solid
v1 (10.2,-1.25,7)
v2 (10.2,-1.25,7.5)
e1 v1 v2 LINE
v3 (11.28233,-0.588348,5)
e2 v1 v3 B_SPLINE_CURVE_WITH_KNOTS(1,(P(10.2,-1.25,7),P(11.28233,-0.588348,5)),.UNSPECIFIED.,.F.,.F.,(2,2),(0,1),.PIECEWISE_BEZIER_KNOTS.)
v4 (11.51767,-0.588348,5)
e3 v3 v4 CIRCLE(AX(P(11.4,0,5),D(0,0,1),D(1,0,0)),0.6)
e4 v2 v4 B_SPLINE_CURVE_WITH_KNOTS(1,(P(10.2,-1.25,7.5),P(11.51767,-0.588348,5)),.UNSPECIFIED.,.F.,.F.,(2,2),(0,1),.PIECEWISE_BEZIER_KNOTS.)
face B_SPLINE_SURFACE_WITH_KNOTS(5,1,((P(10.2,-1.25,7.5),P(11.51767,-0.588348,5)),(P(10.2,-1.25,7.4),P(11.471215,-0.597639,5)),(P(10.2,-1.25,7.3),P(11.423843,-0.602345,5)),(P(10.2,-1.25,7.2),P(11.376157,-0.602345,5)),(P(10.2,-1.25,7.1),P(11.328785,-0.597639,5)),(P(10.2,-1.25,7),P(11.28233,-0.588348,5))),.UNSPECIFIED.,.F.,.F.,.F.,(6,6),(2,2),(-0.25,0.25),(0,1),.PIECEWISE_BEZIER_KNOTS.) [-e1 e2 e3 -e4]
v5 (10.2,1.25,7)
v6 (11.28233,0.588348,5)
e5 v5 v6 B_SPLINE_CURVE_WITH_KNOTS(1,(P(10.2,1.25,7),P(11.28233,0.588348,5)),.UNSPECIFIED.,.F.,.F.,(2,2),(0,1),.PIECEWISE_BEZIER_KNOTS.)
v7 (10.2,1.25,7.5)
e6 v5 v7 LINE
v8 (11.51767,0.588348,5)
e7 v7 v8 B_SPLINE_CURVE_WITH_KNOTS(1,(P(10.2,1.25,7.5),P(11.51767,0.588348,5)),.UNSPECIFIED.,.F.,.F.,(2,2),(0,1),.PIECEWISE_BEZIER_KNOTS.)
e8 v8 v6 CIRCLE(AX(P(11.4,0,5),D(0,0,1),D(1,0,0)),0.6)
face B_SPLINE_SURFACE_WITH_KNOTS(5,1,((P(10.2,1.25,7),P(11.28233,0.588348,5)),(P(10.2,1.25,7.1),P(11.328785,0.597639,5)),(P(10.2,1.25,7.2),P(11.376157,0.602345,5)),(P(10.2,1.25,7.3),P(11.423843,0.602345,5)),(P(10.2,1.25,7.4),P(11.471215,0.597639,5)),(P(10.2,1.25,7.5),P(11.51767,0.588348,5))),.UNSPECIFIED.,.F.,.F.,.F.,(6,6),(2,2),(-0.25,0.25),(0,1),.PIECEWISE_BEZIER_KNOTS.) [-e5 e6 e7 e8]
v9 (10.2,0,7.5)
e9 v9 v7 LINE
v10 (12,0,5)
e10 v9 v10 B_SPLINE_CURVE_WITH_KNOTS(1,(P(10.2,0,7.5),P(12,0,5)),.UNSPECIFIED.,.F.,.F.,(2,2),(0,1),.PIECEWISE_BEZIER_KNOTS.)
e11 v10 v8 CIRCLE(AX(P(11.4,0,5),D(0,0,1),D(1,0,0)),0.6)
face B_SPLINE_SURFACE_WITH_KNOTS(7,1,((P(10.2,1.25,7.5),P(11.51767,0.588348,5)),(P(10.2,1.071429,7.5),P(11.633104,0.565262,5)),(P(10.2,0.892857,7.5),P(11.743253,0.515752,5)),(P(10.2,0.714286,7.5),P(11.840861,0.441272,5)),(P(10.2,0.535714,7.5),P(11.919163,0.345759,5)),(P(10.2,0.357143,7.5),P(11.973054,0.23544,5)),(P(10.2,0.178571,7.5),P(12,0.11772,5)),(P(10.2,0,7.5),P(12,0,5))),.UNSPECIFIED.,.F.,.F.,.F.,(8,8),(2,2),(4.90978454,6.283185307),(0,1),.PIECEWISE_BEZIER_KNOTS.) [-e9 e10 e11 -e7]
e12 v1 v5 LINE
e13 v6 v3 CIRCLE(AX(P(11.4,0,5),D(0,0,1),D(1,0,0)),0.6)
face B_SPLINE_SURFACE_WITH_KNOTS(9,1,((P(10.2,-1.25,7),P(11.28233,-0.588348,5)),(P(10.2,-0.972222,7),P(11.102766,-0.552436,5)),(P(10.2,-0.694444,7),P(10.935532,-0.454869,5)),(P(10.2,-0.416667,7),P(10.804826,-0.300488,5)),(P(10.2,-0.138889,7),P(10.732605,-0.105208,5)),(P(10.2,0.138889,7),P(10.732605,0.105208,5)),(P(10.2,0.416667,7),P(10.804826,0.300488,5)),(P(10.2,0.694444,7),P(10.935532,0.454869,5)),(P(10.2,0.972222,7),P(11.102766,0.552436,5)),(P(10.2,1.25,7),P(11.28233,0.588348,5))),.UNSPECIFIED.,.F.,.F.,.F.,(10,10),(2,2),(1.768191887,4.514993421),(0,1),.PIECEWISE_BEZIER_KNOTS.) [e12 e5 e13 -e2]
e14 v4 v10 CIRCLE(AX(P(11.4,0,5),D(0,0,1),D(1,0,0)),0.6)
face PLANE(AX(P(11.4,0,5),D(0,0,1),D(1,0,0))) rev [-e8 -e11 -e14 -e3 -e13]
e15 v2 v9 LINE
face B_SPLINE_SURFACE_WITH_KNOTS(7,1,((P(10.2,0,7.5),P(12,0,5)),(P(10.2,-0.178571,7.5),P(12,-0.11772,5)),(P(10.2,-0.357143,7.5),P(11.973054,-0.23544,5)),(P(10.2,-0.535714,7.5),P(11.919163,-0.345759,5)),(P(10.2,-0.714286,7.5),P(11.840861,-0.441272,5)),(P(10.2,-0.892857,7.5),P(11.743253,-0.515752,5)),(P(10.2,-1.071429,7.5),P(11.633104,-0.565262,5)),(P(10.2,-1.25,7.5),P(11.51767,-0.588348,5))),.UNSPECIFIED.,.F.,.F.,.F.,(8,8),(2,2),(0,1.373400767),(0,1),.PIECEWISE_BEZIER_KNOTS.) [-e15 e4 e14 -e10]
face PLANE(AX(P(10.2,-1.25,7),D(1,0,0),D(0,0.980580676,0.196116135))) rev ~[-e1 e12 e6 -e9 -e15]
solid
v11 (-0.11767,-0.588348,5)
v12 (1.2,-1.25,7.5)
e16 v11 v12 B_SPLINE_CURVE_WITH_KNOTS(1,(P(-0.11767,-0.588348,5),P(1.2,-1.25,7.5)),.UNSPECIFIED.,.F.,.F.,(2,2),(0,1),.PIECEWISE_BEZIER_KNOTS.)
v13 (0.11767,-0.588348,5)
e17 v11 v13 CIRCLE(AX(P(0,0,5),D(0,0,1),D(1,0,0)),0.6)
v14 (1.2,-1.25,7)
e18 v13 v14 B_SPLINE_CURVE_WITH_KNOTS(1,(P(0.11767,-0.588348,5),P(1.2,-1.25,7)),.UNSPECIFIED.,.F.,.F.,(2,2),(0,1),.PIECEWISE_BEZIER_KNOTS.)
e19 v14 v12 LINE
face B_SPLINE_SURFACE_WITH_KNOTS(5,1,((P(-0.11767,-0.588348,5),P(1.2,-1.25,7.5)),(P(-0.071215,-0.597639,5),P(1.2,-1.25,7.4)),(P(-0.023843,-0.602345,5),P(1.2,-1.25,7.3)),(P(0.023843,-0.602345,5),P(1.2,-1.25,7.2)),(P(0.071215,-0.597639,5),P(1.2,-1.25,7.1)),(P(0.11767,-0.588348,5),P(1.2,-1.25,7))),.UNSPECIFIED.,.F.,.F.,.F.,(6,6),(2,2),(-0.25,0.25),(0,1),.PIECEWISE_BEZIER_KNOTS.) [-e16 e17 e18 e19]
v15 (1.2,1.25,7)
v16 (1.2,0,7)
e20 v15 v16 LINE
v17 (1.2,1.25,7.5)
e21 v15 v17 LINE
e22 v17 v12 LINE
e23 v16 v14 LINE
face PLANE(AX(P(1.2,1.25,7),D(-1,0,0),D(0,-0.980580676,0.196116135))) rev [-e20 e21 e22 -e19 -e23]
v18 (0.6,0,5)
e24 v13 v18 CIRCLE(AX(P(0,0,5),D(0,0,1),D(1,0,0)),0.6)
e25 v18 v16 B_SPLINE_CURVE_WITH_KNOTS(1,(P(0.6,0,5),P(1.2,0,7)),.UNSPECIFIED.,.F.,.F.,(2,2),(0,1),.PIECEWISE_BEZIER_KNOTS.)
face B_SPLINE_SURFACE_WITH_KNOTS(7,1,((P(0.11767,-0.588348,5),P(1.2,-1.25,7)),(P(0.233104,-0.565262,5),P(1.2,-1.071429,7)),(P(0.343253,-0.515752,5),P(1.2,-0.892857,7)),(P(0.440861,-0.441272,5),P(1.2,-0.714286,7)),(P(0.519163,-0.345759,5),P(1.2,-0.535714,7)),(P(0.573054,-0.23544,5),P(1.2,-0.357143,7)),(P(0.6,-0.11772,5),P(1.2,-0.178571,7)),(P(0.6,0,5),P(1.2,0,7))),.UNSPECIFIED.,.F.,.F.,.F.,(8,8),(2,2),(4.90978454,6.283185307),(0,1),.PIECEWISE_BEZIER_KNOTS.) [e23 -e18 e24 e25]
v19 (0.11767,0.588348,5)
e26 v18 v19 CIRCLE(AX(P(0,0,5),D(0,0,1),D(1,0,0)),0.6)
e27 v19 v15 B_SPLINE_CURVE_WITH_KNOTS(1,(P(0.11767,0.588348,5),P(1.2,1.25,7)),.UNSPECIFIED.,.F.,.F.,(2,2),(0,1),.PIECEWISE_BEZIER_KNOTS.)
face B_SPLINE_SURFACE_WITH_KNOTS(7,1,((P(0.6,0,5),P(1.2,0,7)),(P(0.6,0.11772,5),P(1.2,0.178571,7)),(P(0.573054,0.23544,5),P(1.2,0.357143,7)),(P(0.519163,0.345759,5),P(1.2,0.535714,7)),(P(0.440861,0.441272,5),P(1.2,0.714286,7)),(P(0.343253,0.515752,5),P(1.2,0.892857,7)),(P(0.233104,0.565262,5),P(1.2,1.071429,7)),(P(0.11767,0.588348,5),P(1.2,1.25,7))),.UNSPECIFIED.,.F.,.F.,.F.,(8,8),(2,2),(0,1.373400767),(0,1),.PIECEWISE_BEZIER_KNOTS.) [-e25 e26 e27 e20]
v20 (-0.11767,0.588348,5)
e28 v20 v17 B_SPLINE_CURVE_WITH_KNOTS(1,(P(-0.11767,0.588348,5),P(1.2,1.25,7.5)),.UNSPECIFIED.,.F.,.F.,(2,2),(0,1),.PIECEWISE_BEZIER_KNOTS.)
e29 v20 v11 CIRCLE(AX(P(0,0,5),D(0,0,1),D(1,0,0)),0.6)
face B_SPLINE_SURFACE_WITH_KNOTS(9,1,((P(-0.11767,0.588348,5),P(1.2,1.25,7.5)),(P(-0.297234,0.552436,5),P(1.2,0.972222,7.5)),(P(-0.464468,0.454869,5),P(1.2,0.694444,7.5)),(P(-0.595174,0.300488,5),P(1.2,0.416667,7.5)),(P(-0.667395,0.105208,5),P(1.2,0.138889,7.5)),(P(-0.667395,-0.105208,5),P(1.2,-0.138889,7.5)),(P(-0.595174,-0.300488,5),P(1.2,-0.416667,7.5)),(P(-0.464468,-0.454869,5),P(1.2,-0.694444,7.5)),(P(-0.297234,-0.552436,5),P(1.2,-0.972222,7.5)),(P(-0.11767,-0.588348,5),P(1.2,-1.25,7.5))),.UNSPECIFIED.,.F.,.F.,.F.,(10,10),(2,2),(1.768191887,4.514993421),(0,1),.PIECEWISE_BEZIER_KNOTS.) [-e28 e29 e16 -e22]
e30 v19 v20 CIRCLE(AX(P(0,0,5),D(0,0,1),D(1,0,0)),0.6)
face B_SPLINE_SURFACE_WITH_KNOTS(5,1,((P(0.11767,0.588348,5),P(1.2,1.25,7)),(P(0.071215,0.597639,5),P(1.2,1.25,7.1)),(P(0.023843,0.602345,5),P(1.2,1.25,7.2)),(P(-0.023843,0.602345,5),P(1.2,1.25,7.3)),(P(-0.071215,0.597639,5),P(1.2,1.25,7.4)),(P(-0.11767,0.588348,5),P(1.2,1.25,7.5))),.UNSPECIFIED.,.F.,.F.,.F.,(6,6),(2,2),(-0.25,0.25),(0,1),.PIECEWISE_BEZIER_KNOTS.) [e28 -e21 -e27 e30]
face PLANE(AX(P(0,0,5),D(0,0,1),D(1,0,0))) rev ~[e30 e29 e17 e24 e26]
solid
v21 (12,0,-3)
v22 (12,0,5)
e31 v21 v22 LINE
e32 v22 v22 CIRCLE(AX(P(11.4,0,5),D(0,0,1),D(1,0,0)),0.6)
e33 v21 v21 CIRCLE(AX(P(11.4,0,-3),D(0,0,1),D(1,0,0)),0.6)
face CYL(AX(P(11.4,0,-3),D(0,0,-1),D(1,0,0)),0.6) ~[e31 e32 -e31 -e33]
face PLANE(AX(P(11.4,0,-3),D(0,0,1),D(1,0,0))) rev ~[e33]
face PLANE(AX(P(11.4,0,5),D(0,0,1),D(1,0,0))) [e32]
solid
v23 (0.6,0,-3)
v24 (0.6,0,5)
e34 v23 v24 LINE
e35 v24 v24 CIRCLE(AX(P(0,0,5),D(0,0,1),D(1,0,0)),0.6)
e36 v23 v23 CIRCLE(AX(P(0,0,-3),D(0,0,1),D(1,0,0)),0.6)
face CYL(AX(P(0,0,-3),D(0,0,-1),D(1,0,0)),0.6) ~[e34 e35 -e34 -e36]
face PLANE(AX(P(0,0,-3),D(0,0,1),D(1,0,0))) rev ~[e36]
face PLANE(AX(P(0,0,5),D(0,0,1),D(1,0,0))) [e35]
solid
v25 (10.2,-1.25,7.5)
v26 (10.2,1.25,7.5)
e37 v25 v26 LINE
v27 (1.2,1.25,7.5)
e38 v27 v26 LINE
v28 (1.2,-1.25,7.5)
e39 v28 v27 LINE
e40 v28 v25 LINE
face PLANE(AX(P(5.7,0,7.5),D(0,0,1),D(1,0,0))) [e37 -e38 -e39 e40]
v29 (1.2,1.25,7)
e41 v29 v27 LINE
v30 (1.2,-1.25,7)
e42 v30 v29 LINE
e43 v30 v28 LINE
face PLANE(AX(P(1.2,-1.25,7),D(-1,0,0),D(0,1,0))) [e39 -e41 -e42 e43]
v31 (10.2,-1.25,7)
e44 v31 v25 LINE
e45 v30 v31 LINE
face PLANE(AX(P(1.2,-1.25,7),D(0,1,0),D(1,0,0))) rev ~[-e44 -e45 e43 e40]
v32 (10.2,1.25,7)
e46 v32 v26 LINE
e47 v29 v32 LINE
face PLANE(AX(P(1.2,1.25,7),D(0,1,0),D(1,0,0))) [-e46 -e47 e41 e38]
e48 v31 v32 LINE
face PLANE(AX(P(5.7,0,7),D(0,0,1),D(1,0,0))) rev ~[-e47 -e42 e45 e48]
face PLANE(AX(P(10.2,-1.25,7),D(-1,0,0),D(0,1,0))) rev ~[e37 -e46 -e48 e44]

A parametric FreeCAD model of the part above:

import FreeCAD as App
import Part
import Sketcher

V = App.Vector

doc = App.newDocument("Part")
body = doc.addObject("PartDesign::Body", "Body")
body.AllowCompound = True

sketch1 = body.newObject("Sketcher::SketchObject", "Sketch")
sketch1.AttachmentSupport = (doc.getObject("XY_Plane"), [""])
sketch1.MapMode = "FlatFace"
sketch1.AttachmentOffset = App.Placement(V(0, 0, -3), App.Rotation())
sketch1.addGeometry(Part.Circle(V(0, 0, 0), V(0, 0, 1), 0.6), False)
sketch1.addGeometry(Part.Circle(V(11.4, 0, 0), V(0, 0, 1), 0.6), False)
sketch1.addConstraint(Sketcher.Constraint("Coincident", 0, 3, -1, 1))
sketch1.addConstraint(Sketcher.Constraint("Equal", 0, 1))
sketch1.addConstraint(Sketcher.Constraint("PointOnObject", 1, 3, -1))
sketch1.addConstraint(Sketcher.Constraint("Diameter", 0, 1.2))
sketch1.addConstraint(Sketcher.Constraint("DistanceX", -1, 1, 1, 3, 11.4))
pad1 = body.newObject("PartDesign::Pad", "Pad")
pad1.Profile = sketch1
pad1.Length = 8
body2 = doc.addObject("PartDesign::Body", "Body001")

sketch2 = body2.newObject("Sketcher::SketchObject", "Sketch001")
sketch2.AttachmentSupport = (doc.getObject("XY_Plane001"), [""])
sketch2.MapMode = "FlatFace"
sketch2.AttachmentOffset = App.Placement(V(0, 0, 7), App.Rotation())
sketch2.addGeometry(Part.LineSegment(V(1.2, 1.2, 0), V(1.2, -1.2, 0)), False)
sketch2.addGeometry(Part.LineSegment(V(1.2, -1.2, 0), V(10.2, -1.2, 0)), False)
sketch2.addGeometry(Part.LineSegment(V(10.2, -1.2, 0), V(10.2, 1.2, 0)), False)
sketch2.addGeometry(Part.LineSegment(V(10.2, 1.2, 0), V(1.2, 1.2, 0)), False)
sketch2.addConstraint(Sketcher.Constraint("Coincident", 0, 2, 1, 1))
sketch2.addConstraint(Sketcher.Constraint("Coincident", 1, 2, 2, 1))
sketch2.addConstraint(Sketcher.Constraint("Coincident", 2, 2, 3, 1))
sketch2.addConstraint(Sketcher.Constraint("Coincident", 3, 2, 0, 1))
sketch2.addConstraint(Sketcher.Constraint("Vertical", 0))
sketch2.addConstraint(Sketcher.Constraint("Horizontal", 1))
sketch2.addConstraint(Sketcher.Constraint("Vertical", 2))
sketch2.addConstraint(Sketcher.Constraint("Horizontal", 3))
sketch2.addConstraint(Sketcher.Constraint("DistanceX", 1, 1, 1, 2, 9.0))
sketch2.addConstraint(Sketcher.Constraint("DistanceY", 0, 2, 0, 1, 2.5))
sketch2.addConstraint(Sketcher.Constraint("DistanceX", -1, 1, 0, 2, 1.2))
sketch2.addConstraint(Sketcher.Constraint("DistanceY", 0, 2, -1, 1, 1.25))
pad2 = body2.newObject("PartDesign::Pad", "Pad001")
pad2.Profile = sketch2
pad2.Length = 0.5
body3 = doc.addObject("PartDesign::Body", "Body002")

sketch3 = body3.newObject("Sketcher::SketchObject", "Sketch002")
sketch3.AttachmentSupport = (doc.getObject("YZ_Plane002"), [""])
sketch3.MapMode = "FlatFace"
sketch3.AttachmentOffset = App.Placement(V(0, 0, 10.2), App.Rotation())
sketch3.addGeometry(Part.LineSegment(V(-1.2, 7.5, 0), V(-1.2, 7, 0)), False)
sketch3.addGeometry(Part.LineSegment(V(-1.2, 7, 0), V(1.2, 7, 0)), False)
sketch3.addGeometry(Part.LineSegment(V(1.2, 7, 0), V(1.2, 7.5, 0)), False)
sketch3.addGeometry(Part.LineSegment(V(1.2, 7.5, 0), V(-1.2, 7.5, 0)), False)
sketch3.addConstraint(Sketcher.Constraint("Coincident", 0, 2, 1, 1))
sketch3.addConstraint(Sketcher.Constraint("Coincident", 1, 2, 2, 1))
sketch3.addConstraint(Sketcher.Constraint("Coincident", 2, 2, 3, 1))
sketch3.addConstraint(Sketcher.Constraint("Coincident", 3, 2, 0, 1))
sketch3.addConstraint(Sketcher.Constraint("Vertical", 0))
sketch3.addConstraint(Sketcher.Constraint("Horizontal", 1))
sketch3.addConstraint(Sketcher.Constraint("Vertical", 2))
sketch3.addConstraint(Sketcher.Constraint("Horizontal", 3))
sketch3.addConstraint(Sketcher.Constraint("DistanceX", 1, 1, 1, 2, 2.5))
sketch3.addConstraint(Sketcher.Constraint("DistanceY", 0, 2, 0, 1, 0.5))
sketch3.addConstraint(Sketcher.Constraint("DistanceY", -1, 1, 0, 2, 7.0))
sketch3.addConstraint(Sketcher.Constraint("DistanceX", 0, 2, -1, 1, 1.25))

sketch4 = body3.newObject("Sketcher::SketchObject", "Sketch003")
sketch4.AttachmentSupport = (doc.getObject("XY_Plane002"), [""])
sketch4.MapMode = "FlatFace"
sketch4.AttachmentOffset = App.Placement(V(0, 0, 5), App.Rotation())
sketch4.addGeometry(Part.Circle(V(11.4, 0, 0), V(0, 0, 1), 0.6), False)
sketch4.addConstraint(Sketcher.Constraint("PointOnObject", 0, 3, -1))
sketch4.addConstraint(Sketcher.Constraint("Diameter", 0, 1.2))
sketch4.addConstraint(Sketcher.Constraint("DistanceX", -1, 1, 0, 3, 11.4))

additiveloft = body3.newObject("PartDesign::AdditiveLoft", "AdditiveLoft")
additiveloft.Profile = sketch3
additiveloft.Sections = [sketch4]
body4 = doc.addObject("PartDesign::Body", "Body003")

sketch5 = body4.newObject("Sketcher::SketchObject", "Sketch004")
sketch5.AttachmentSupport = (doc.getObject("XY_Plane003"), [""])
sketch5.MapMode = "FlatFace"
sketch5.AttachmentOffset = App.Placement(V(0, 0, 5), App.Rotation())
sketch5.addGeometry(Part.Circle(V(0, 0, 0), V(0, 0, 1), 0.6), False)
sketch5.addConstraint(Sketcher.Constraint("Coincident", 0, 3, -1, 1))
sketch5.addConstraint(Sketcher.Constraint("Diameter", 0, 1.2))

sketch6 = body4.newObject("Sketcher::SketchObject", "Sketch005")
sketch6.AttachmentSupport = (doc.getObject("YZ_Plane003"), [""])
sketch6.MapMode = "FlatFace"
sketch6.AttachmentOffset = App.Placement(V(0, 0, 1.2), App.Rotation())
sketch6.addGeometry(Part.LineSegment(V(1.2, 7.5, 0), V(1.2, 7, 0)), False)
sketch6.addGeometry(Part.LineSegment(V(1.2, 7, 0), V(-1.2, 7, 0)), False)
sketch6.addGeometry(Part.LineSegment(V(-1.2, 7, 0), V(-1.2, 7.5, 0)), False)
sketch6.addGeometry(Part.LineSegment(V(-1.2, 7.5, 0), V(1.2, 7.5, 0)), False)
sketch6.addConstraint(Sketcher.Constraint("Coincident", 0, 2, 1, 1))
sketch6.addConstraint(Sketcher.Constraint("Coincident", 1, 2, 2, 1))
sketch6.addConstraint(Sketcher.Constraint("Coincident", 2, 2, 3, 1))
sketch6.addConstraint(Sketcher.Constraint("Coincident", 3, 2, 0, 1))
sketch6.addConstraint(Sketcher.Constraint("Vertical", 0))
sketch6.addConstraint(Sketcher.Constraint("Horizontal", 1))
sketch6.addConstraint(Sketcher.Constraint("Vertical", 2))
sketch6.addConstraint(Sketcher.Constraint("Horizontal", 3))
sketch6.addConstraint(Sketcher.Constraint("DistanceX", 1, 2, 1, 1, 2.5))
sketch6.addConstraint(Sketcher.Constraint("DistanceY", 0, 2, 0, 1, 0.5))
sketch6.addConstraint(Sketcher.Constraint("DistanceY", -1, 1, 0, 2, 7.0))
sketch6.addConstraint(Sketcher.Constraint("DistanceX", -1, 1, 0, 2, 1.25))

additiveloft2 = body4.newObject("PartDesign::AdditiveLoft", "AdditiveLoft001")
additiveloft2.Profile = sketch5
additiveloft2.Sections = [sketch6]

doc.recompute()
